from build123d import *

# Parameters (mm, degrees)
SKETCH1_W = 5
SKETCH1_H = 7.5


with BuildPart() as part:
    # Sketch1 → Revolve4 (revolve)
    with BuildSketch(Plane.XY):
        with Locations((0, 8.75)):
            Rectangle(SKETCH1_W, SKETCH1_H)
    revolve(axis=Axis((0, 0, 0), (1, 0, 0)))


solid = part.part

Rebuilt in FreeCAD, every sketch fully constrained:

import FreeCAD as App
import Part
import Sketcher

V = App.Vector
Q = App.Units.Quantity

doc = App.newDocument("Part")
body = doc.addObject("PartDesign::Body", "Body")

sketch1 = body.newObject("Sketcher::SketchObject", "Sketch")
sketch1.AttachmentSupport = (doc.getObject("XY_Plane"), [""])
sketch1.MapMode = "FlatFace"
sketch1.addGeometry([
    Part.LineSegment(V(-2.5, 12.5, 0), V(-2.5, 5, 0)),
    Part.LineSegment(V(-2.5, 5, 0), V(2.5, 5, 0)),
    Part.LineSegment(V(2.5, 5, 0), V(2.5, 12.5, 0)),
    Part.LineSegment(V(2.5, 12.5, 0), V(-2.5, 12.5, 0)),
], False)
sketch1.addConstraint([
    Sketcher.Constraint("Coincident", 0, 2, 1, 1),
    Sketcher.Constraint("Coincident", 1, 2, 2, 1),
    Sketcher.Constraint("Coincident", 2, 2, 3, 1),
    Sketcher.Constraint("Coincident", 3, 2, 0, 1),
    Sketcher.Constraint("Vertical", 0),
    Sketcher.Constraint("Horizontal", 1),
    Sketcher.Constraint("Vertical", 2),
    Sketcher.Constraint("Horizontal", 3),
    Sketcher.Constraint("DistanceX", 1, 1, 1, 2, Q("5 mm")),
    Sketcher.Constraint("DistanceY", 0, 2, 0, 1, Q("7.5 mm")),
    Sketcher.Constraint("DistanceY", -1, 1, 0, 2, Q("5 mm")),
    Sketcher.Constraint("DistanceX", 0, 2, -1, 1, Q("2.5 mm")),
])
revolution = body.newObject("PartDesign::Revolution", "Revolution")
revolution.Profile = sketch1
revolution.ReferenceAxis = (sketch1, ["H_Axis"])
revolution.Angle = 360

doc.recompute()
